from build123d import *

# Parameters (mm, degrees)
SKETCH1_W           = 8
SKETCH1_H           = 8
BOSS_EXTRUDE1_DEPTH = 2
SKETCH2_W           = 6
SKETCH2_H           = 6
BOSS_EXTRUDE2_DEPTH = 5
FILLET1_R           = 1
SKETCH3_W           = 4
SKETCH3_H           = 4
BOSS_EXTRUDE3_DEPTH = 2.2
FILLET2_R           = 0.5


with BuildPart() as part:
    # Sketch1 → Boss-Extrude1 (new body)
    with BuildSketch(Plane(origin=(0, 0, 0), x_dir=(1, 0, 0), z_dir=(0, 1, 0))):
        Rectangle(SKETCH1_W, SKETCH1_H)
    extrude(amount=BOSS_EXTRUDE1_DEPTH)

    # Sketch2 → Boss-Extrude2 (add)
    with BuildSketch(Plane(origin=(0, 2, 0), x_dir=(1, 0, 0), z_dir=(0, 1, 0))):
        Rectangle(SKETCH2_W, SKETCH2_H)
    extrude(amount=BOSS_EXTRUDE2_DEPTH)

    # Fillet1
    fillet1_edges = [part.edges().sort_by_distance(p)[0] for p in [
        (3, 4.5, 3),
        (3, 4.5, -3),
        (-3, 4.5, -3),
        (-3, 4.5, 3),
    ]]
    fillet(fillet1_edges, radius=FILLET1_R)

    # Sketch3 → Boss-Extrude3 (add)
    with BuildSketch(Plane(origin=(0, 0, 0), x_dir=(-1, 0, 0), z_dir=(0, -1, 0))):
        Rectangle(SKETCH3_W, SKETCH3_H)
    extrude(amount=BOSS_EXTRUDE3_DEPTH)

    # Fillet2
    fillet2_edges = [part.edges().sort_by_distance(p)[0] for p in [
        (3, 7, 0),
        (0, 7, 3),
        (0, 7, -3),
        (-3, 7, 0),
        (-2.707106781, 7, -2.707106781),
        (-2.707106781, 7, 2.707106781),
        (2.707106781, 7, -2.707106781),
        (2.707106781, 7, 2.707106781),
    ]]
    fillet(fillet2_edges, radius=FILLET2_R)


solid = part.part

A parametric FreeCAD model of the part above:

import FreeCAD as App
import Part
import Sketcher

V = App.Vector


def edges_at(feature, points):
    """Names of the edges that pass closest to the given points."""
    edges = feature.Shape.Edges
    near = lambda p: min(range(len(edges)), key=lambda i: edges[i].distToShape(Part.Vertex(*p))[0])
    return sorted({f"Edge{near(p) + 1}" for p in points})


def add_polygon(sketch, points):
    """Adds a closed chain of lines whose ends are joined by coincident constraints."""
    first, n = sketch.GeometryCount, len(points)
    for a, b in zip(points, points[1:] + points[:1]):
        sketch.addGeometry(Part.LineSegment(App.Vector(*a, 0), App.Vector(*b, 0)), False)
    for i in range(n):
        sketch.addConstraint(Sketcher.Constraint("Coincident", first + i, 2, first + (i + 1) % n, 1))

doc = App.newDocument("Part")
params = doc.addObject("Spreadsheet::Sheet", "Params")
for row, (alias, value) in enumerate([
    ("sketch1_width", "8 mm"),
    ("pad1_length", "2 mm"),
    ("sketch2_width", "6 mm"),
    ("pad2_length", "5 mm"),
    ("fillet_radius", "1 mm"),
    ("sketch3_width", "4 mm"),
    ("pad3_length", "2.2 mm"),
    ("fillet2_radius", "0.5 mm"),
], start=1):
    params.set(f"A{row}", alias)
    params.set(f"B{row}", "=" + value)
    params.setAlias(f"B{row}", alias)

body = doc.addObject("PartDesign::Body", "Body")

sketch1 = body.newObject("Sketcher::SketchObject", "Sketch")
sketch1.AttachmentSupport = (doc.getObject("XZ_Plane"), [""])
sketch1.MapMode = "FlatFace"
add_polygon(sketch1, [(-4, -4), (-4, 4), (4, 4), (4, -4)])
sketch1.addConstraint(Sketcher.Constraint("Vertical", 0))
sketch1.addConstraint(Sketcher.Constraint("Horizontal", 1))
sketch1.addConstraint(Sketcher.Constraint("Vertical", 2))
sketch1.addConstraint(Sketcher.Constraint("Horizontal", 3))
sketch1.addConstraint(Sketcher.Constraint("Symmetric", 0, 2, 2, 2, -1, 1))
sketch1.addConstraint(Sketcher.Constraint("Equal", 3, 0))
sketch1.addConstraint(Sketcher.Constraint("DistanceX", 1, 1, 1, 2, 8.0))
sketch1.setExpression("Constraints[10]", "Params.sketch1_width")
pad1 = body.newObject("PartDesign::Pad", "Pad")
pad1.Profile = sketch1
pad1.setExpression("Length", "Params.pad1_length")
pad1.Reversed = True

sketch2 = body.newObject("Sketcher::SketchObject", "Sketch001")
sketch2.AttachmentSupport = (doc.getObject("XZ_Plane"), [""])
sketch2.MapMode = "FlatFace"
sketch2.AttachmentOffset = App.Placement(V(0, 0, -2), App.Rotation())
add_polygon(sketch2, [(-3, -3), (-3, 3), (3, 3), (3, -3)])
sketch2.addConstraint(Sketcher.Constraint("Vertical", 0))
sketch2.addConstraint(Sketcher.Constraint("Horizontal", 1))
sketch2.addConstraint(Sketcher.Constraint("Vertical", 2))
sketch2.addConstraint(Sketcher.Constraint("Horizontal", 3))
sketch2.addConstraint(Sketcher.Constraint("Symmetric", 0, 2, 2, 2, -1, 1))
sketch2.addConstraint(Sketcher.Constraint("Equal", 3, 0))
sketch2.addConstraint(Sketcher.Constraint("DistanceX", 1, 1, 1, 2, 6.0))
sketch2.setExpression("Constraints[10]", "Params.sketch2_width")
pad2 = body.newObject("PartDesign::Pad", "Pad001")
pad2.Profile = sketch2
pad2.setExpression("Length", "Params.pad2_length")
pad2.Reversed = True
doc.recompute()

fillet = body.newObject("PartDesign::Fillet", "Fillet")
fillet.Base = (pad2, edges_at(pad2, [
    (3, 4.5, 3),
    (3, 4.5, -3),
    (-3, 4.5, -3),
    (-3, 4.5, 3),
]))
fillet.setExpression("Radius", "Params.fillet_radius")

sketch3 = body.newObject("Sketcher::SketchObject", "Sketch002")
sketch3.AttachmentSupport = (doc.getObject("XZ_Plane"), [""])
sketch3.MapMode = "FlatFace"
add_polygon(sketch3, [(2, -2), (2, 2), (-2, 2), (-2, -2)])
sketch3.addConstraint(Sketcher.Constraint("Vertical", 0))
sketch3.addConstraint(Sketcher.Constraint("Horizontal", 1))
sketch3.addConstraint(Sketcher.Constraint("Vertical", 2))
sketch3.addConstraint(Sketcher.Constraint("Horizontal", 3))
sketch3.addConstraint(Sketcher.Constraint("Symmetric", 0, 2, 2, 2, -1, 1))
sketch3.addConstraint(Sketcher.Constraint("Equal", 3, 0))
sketch3.addConstraint(Sketcher.Constraint("DistanceX", 1, 2, 1, 1, 4.0))
sketch3.setExpression("Constraints[10]", "Params.sketch3_width")
pad3 = body.newObject("PartDesign::Pad", "Pad002")
pad3.Profile = sketch3
pad3.setExpression("Length", "Params.pad3_length")
doc.recompute()

fillet2 = body.newObject("PartDesign::Fillet", "Fillet001")
fillet2.Base = (pad3, edges_at(pad3, [
    (3, 7, 0),
    (0, 7, 3),
    (0, 7, -3),
    (-3, 7, 0),
    (-2.707, 7, -2.707),
    (-2.707, 7, 2.707),
    (2.707, 7, -2.707),
    (2.707, 7, 2.707),
]))
fillet2.setExpression("Radius", "Params.fillet2_radius")

doc.recompute()
